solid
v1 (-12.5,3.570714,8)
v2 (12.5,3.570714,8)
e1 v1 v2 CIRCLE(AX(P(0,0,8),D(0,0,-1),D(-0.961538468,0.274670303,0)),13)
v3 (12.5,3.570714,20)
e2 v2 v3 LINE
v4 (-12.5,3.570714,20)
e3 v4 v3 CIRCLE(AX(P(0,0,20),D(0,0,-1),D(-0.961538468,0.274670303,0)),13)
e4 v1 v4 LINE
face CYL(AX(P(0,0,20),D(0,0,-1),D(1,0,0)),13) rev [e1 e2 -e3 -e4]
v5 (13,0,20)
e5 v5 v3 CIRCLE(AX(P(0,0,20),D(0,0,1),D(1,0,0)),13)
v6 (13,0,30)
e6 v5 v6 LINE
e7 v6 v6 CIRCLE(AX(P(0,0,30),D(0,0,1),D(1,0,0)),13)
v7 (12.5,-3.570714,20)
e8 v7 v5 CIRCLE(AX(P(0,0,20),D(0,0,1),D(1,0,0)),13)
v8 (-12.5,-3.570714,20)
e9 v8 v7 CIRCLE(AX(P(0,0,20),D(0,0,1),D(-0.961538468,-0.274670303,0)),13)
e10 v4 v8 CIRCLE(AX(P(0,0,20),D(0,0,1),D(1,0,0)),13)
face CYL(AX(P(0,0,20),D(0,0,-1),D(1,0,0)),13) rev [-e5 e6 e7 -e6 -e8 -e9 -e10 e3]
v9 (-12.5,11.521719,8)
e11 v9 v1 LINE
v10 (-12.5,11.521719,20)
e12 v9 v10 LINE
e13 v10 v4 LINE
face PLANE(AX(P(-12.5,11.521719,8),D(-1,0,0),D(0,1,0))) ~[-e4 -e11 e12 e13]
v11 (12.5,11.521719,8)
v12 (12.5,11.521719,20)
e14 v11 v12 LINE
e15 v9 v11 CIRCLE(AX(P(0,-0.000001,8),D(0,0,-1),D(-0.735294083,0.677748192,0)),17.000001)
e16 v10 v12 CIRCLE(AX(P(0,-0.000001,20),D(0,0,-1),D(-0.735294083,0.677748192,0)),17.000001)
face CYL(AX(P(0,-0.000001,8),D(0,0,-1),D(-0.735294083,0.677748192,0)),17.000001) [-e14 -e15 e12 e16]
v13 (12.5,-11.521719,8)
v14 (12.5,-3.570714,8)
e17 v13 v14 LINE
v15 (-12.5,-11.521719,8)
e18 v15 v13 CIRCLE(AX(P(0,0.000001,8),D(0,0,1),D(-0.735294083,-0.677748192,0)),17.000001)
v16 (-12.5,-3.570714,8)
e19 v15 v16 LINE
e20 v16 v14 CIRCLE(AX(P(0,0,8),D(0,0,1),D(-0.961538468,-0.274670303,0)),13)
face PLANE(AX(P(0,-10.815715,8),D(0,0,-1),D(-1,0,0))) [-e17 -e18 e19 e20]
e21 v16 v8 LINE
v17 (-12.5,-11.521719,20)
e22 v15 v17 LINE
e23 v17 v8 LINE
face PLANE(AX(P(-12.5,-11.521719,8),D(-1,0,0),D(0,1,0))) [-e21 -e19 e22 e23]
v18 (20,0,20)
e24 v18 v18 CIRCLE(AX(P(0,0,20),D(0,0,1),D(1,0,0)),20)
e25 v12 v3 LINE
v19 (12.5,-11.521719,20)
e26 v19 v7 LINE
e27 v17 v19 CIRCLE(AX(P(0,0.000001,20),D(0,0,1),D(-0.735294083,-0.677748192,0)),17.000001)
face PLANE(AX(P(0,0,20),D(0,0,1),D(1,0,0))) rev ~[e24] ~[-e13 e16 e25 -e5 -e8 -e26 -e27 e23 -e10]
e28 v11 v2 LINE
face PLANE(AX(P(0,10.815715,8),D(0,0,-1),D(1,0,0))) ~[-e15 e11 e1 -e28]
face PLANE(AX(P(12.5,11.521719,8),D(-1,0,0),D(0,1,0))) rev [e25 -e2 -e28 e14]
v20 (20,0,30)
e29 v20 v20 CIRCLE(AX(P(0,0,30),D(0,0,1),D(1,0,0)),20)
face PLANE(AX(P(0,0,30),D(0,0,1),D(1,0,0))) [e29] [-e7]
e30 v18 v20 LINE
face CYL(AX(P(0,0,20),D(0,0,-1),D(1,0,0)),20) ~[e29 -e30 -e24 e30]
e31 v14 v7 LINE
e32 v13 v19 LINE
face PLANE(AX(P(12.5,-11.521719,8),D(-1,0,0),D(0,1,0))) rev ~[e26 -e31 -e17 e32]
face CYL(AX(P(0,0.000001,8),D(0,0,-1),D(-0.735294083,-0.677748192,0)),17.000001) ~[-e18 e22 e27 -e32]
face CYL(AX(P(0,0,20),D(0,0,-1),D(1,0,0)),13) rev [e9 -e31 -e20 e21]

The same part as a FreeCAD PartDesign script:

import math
import FreeCAD as App
import Part
import Sketcher

doc = App.newDocument("Part")
params = doc.addObject("Spreadsheet::Sheet", "Params")
for row, (alias, value) in enumerate([
    ("sketch1_radius", "13 mm"),
    ("sketch1_radius2", "17.000001 mm"),
    ("pad1_length", "12 mm"),
    ("sketch2_diameter", "40 mm"),
    ("sketch2_diameter2", "26 mm"),
    ("pad2_length", "10 mm"),
], start=1):
    params.set(f"A{row}", alias)
    params.set(f"B{row}", "=" + value)
    params.setAlias(f"B{row}", alias)

body = doc.addObject("PartDesign::Body", "Body")
body.AllowCompound = True

# Sketch on XY plane
sketch1 = body.newObject("Sketcher::SketchObject", "Sketch")
sketch1.AttachmentSupport = (doc.getObject("XY_Plane"), [""])
sketch1.MapMode = "FlatFace"
sketch1.AttachmentOffset = App.Placement(App.Vector(0, 0, 8), App.Rotation())
sketch1.addGeometry([
    Part.ArcOfCircle(Part.Circle(App.Vector(0, 0, 0), App.Vector(0, 0, 1), 13), math.radians(-164), math.radians(-16)),
    Part.LineSegment(App.Vector(-12, -4, 0), App.Vector(-12, -12, 0)),
    Part.ArcOfCircle(Part.Circle(App.Vector(0, 0, 0), App.Vector(0, 0, 1), 17), math.radians(-137), math.radians(-43)),
    Part.LineSegment(App.Vector(12, -12, 0), App.Vector(12, -4, 0)),
], False)
sketch1.addConstraint([
    Sketcher.Constraint("Coincident", 0, 1, 1, 1),
    Sketcher.Constraint("Coincident", 1, 2, 2, 1),
    Sketcher.Constraint("Coincident", 2, 2, 3, 1),
    Sketcher.Constraint("Coincident", 3, 2, 0, 2),
    Sketcher.Constraint("Vertical", 1),
    Sketcher.Constraint("Vertical", 3),
    Sketcher.Constraint("Coincident", 0, 3, -1, 1),
    Sketcher.Constraint("Coincident", 2, 3, -1, 1),
    Sketcher.Constraint("Horizontal", 1, 2, 2, 2),
    Sketcher.Constraint("Radius", 0, 13.0),
    Sketcher.Constraint("Radius", 2, 17.000001),
    Sketcher.Constraint("DistanceX", 1, 2, 2, 2, 25.0),
])
sketch1.setExpression("Constraints[9]", "Params.sketch1_radius")
sketch1.setExpression("Constraints[10]", "Params.sketch1_radius2")
pad1 = body.newObject("PartDesign::Pad", "Pad")
pad1.Profile = sketch1
pad1.setExpression("Length", "Params.pad1_length")
doc.recompute()

mirrored = body.newObject("PartDesign::Mirrored", "Mirrored")
mirrored.Originals = [pad1]
mirrored.MirrorPlane = (doc.getObject("XZ_Plane"), [""])
body.Tip = mirrored

# Sketch on XY plane
sketch2 = body.newObject("Sketcher::SketchObject", "Sketch001")
sketch2.AttachmentSupport = (doc.getObject("XY_Plane"), [""])
sketch2.MapMode = "FlatFace"
sketch2.AttachmentOffset = App.Placement(App.Vector(0, 0, 20), App.Rotation())
sketch2.addGeometry([
    Part.Circle(App.Vector(0, 0, 0), App.Vector(0, 0, 1), 20),
    Part.Circle(App.Vector(0, 0, 0), App.Vector(0, 0, 1), 13),
], False)
sketch2.addConstraint([
    Sketcher.Constraint("Coincident", 0, 3, -1, 1),
    Sketcher.Constraint("Coincident", 1, 3, -1, 1),
    Sketcher.Constraint("Diameter", 0, 40.0),
    Sketcher.Constraint("Diameter", 1, 26.0),
])
sketch2.setExpression("Constraints[2]", "Params.sketch2_diameter")
sketch2.setExpression("Constraints[3]", "Params.sketch2_diameter2")
pad2 = body.newObject("PartDesign::Pad", "Pad001")
pad2.Profile = sketch2
pad2.setExpression("Length", "Params.pad2_length")
doc.recompute()

mirrored2 = body.newObject("PartDesign::Mirrored", "Mirrored001")
mirrored2.Originals = [pad1]
mirrored2.MirrorPlane = (doc.getObject("XZ_Plane"), [""])
body.Tip = mirrored2

doc.recompute()
